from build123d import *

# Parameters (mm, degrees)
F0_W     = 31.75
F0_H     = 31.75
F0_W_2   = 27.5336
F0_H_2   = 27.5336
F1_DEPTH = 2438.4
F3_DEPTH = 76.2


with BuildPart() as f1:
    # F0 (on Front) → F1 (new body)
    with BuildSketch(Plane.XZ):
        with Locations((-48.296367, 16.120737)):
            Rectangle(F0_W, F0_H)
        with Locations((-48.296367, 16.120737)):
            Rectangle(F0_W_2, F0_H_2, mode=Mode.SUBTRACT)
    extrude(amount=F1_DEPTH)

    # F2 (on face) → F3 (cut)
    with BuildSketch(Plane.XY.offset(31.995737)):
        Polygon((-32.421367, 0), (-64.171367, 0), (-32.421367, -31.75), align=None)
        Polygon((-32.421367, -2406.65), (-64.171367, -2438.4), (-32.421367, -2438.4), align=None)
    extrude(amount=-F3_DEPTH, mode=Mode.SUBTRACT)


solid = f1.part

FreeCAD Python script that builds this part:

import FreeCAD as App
import Part
import Sketcher

V = App.Vector
Q = App.Units.Quantity


def add_polygon(sketch, points):
    """Adds a closed chain of lines whose ends are joined by coincident constraints."""
    first, n = sketch.GeometryCount, len(points)
    for a, b in zip(points, points[1:] + points[:1]):
        sketch.addGeometry(Part.LineSegment(App.Vector(*a, 0), App.Vector(*b, 0)), False)
    for i in range(n):
        sketch.addConstraint(Sketcher.Constraint("Coincident", first + i, 2, first + (i + 1) % n, 1))

doc = App.newDocument("Part")
body = doc.addObject("PartDesign::Body", "Body")

# Sketch on XZ plane
sketch1 = doc.addObject("Sketcher::SketchObject", "Sketch")
body.addObject(sketch1)
sketch1.AttachmentSupport = (doc.XZ_Plane, [""])
sketch1.MapMode = "FlatFace"
add_polygon(sketch1, [(-64.171367, 31.995737), (-64.171367, 0.245737), (-32.421367, 0.245737), (-32.421367, 31.995737)])  # lines 0-3
add_polygon(sketch1, [(-34.529567, 2.353937), (-62.063167, 2.353937), (-62.063167, 29.887537), (-34.529567, 29.887537)])  # lines 4-7
sketch1.addConstraint(Sketcher.Constraint("Vertical", 0))
sketch1.addConstraint(Sketcher.Constraint("Horizontal", 1))
sketch1.addConstraint(Sketcher.Constraint("Vertical", 2))
sketch1.addConstraint(Sketcher.Constraint("Horizontal", 3))
sketch1.addConstraint(Sketcher.Constraint("Horizontal", 4))
sketch1.addConstraint(Sketcher.Constraint("Vertical", 5))
sketch1.addConstraint(Sketcher.Constraint("Horizontal", 6))
sketch1.addConstraint(Sketcher.Constraint("Vertical", 7))
sketch1.addConstraint(Sketcher.Constraint("Equal", 3, 0))
sketch1.addConstraint(Sketcher.Constraint("Equal", 6, 5))
sketch1.addConstraint(Sketcher.Constraint("DistanceX", 1, 1, 1, 2, Q("1.25 in")))
sketch1.addConstraint(Sketcher.Constraint("DistanceX", 4, 2, 4, 1, Q("1.084 in")))
sketch1.addConstraint(Sketcher.Constraint("DistanceX", 0, 2, 4, 2, Q("0.083 in")))
sketch1.addConstraint(Sketcher.Constraint("DistanceY", 0, 2, 4, 2, Q("0.083 in")))
sketch1.addConstraint(Sketcher.Constraint("DistanceX", 0, 2, -1, 1, Q("64.171367 mm")))
sketch1.addConstraint(Sketcher.Constraint("DistanceY", -1, 1, 0, 2, Q("0.245737 mm")))
pad1 = doc.addObject("PartDesign::Pad", "Pad")
body.addObject(pad1)
pad1.Profile = sketch1
pad1.Length = Q("96 in")

# Sketch on XY plane
sketch2 = doc.addObject("Sketcher::SketchObject", "Sketch001")
body.addObject(sketch2)
sketch2.AttachmentSupport = (doc.XY_Plane, [""])
sketch2.MapMode = "FlatFace"
sketch2.AttachmentOffset = App.Placement(V(0, 0, 31.995737), App.Rotation())
add_polygon(sketch2, [(-32.421367, 0), (-64.171367, 0), (-32.421367, -31.75)])  # lines 0-2
add_polygon(sketch2, [(-32.421367, -2406.65), (-64.171367, -2438.4), (-32.421367, -2438.4)])  # lines 3-5
sketch2.addConstraint(Sketcher.Constraint("Horizontal", 0))
sketch2.addConstraint(Sketcher.Constraint("Vertical", 2))
sketch2.addConstraint(Sketcher.Constraint("Horizontal", 4))
sketch2.addConstraint(Sketcher.Constraint("Vertical", 5))
sketch2.addConstraint(Sketcher.Constraint("PointOnObject", 0, 2, -1))
sketch2.addConstraint(Sketcher.Constraint("Perpendicular", 1, 3))
sketch2.addConstraint(Sketcher.Constraint("Vertical", 0, 2, 3, 2))
sketch2.addConstraint(Sketcher.Constraint("Vertical", 2, 2, 4, 2))
sketch2.addConstraint(Sketcher.Constraint("Equal", 4, 2))
sketch2.addConstraint(Sketcher.Constraint("DistanceY", 3, 2, -1, 1, Q("96 in")))
sketch2.addConstraint(Sketcher.Constraint("DistanceX", 0, 2, 0, 1, Q("1.25 in")))
sketch2.addConstraint(Sketcher.Constraint("DistanceX", 0, 2, -1, 1, Q("64.171367 mm")))
pocket1 = doc.addObject("PartDesign::Pocket", "Pocket")
body.addObject(pocket1)
pocket1.Profile = sketch2
pocket1.Length = Q("3 in")

doc.recompute()
